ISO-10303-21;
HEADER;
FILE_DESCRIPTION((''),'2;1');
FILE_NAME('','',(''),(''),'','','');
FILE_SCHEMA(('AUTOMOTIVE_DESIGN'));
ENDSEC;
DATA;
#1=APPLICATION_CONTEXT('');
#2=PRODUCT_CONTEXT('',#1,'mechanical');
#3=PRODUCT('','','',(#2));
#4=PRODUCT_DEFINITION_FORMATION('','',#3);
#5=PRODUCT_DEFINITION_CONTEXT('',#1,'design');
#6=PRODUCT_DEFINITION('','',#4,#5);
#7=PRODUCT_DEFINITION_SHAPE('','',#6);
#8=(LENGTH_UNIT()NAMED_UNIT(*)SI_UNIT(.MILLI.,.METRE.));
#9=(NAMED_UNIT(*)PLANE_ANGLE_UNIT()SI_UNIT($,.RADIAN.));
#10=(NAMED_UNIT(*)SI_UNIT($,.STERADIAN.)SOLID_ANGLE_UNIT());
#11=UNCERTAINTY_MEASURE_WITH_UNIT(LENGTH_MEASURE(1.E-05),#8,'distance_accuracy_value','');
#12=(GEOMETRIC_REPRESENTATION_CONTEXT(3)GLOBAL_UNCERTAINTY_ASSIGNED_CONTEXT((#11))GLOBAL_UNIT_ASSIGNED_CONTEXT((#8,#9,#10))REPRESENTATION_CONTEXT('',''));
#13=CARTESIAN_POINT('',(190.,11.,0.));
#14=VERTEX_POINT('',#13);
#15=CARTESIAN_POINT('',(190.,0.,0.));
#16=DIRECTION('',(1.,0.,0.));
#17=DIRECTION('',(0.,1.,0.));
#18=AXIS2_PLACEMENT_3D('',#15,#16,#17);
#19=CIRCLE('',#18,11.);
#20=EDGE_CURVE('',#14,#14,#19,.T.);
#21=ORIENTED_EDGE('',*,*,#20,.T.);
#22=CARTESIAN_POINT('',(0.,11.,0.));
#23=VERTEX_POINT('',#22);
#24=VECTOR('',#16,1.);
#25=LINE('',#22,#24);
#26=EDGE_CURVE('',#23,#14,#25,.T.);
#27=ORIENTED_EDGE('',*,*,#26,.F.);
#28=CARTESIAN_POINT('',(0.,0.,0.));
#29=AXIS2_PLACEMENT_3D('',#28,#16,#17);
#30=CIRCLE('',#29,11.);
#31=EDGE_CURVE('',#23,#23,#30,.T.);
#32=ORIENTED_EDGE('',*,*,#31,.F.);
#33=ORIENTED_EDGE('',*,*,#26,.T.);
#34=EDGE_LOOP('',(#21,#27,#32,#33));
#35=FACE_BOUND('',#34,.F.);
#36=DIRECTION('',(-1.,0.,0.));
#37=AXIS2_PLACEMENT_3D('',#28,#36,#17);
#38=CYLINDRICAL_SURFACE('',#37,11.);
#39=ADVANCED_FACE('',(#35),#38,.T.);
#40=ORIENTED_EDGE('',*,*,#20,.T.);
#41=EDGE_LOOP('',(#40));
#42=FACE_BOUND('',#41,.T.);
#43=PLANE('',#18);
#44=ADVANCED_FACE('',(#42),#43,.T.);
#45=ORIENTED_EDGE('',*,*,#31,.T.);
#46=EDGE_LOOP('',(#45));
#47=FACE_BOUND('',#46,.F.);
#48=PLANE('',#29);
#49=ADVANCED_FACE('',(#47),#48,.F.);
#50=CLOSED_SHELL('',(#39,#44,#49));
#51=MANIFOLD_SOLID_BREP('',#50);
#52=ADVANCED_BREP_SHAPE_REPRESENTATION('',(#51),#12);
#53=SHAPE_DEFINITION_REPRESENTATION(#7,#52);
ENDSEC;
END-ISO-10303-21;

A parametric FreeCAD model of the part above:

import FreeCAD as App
import Part
import Sketcher

doc = App.newDocument("Part")
params = doc.addObject("Spreadsheet::Sheet", "Params")
for row, (alias, value) in enumerate([
    ("sketch1_diameter", "22 mm"),
    ("pad1_length", "190 mm"),
], start=1):
    params.set(f"A{row}", alias)
    params.set(f"B{row}", "=" + value)
    params.setAlias(f"B{row}", alias)

body = doc.addObject("PartDesign::Body", "Body")

sketch1 = body.newObject("Sketcher::SketchObject", "Sketch")
sketch1.AttachmentSupport = (doc.getObject("YZ_Plane"), [""])
sketch1.MapMode = "FlatFace"
sketch1.addGeometry(Part.Circle(App.Vector(0, 0, 0), App.Vector(0, 0, 1), 11), False)
sketch1.addConstraint([
    Sketcher.Constraint("Coincident", 0, 3, -1, 1),
    Sketcher.Constraint("Diameter", 0, 22.0),
])
sketch1.setExpression("Constraints[1]", "Params.sketch1_diameter")
pad1 = body.newObject("PartDesign::Pad", "Pad")
pad1.Profile = sketch1
pad1.setExpression("Length", "Params.pad1_length")

doc.recompute()
